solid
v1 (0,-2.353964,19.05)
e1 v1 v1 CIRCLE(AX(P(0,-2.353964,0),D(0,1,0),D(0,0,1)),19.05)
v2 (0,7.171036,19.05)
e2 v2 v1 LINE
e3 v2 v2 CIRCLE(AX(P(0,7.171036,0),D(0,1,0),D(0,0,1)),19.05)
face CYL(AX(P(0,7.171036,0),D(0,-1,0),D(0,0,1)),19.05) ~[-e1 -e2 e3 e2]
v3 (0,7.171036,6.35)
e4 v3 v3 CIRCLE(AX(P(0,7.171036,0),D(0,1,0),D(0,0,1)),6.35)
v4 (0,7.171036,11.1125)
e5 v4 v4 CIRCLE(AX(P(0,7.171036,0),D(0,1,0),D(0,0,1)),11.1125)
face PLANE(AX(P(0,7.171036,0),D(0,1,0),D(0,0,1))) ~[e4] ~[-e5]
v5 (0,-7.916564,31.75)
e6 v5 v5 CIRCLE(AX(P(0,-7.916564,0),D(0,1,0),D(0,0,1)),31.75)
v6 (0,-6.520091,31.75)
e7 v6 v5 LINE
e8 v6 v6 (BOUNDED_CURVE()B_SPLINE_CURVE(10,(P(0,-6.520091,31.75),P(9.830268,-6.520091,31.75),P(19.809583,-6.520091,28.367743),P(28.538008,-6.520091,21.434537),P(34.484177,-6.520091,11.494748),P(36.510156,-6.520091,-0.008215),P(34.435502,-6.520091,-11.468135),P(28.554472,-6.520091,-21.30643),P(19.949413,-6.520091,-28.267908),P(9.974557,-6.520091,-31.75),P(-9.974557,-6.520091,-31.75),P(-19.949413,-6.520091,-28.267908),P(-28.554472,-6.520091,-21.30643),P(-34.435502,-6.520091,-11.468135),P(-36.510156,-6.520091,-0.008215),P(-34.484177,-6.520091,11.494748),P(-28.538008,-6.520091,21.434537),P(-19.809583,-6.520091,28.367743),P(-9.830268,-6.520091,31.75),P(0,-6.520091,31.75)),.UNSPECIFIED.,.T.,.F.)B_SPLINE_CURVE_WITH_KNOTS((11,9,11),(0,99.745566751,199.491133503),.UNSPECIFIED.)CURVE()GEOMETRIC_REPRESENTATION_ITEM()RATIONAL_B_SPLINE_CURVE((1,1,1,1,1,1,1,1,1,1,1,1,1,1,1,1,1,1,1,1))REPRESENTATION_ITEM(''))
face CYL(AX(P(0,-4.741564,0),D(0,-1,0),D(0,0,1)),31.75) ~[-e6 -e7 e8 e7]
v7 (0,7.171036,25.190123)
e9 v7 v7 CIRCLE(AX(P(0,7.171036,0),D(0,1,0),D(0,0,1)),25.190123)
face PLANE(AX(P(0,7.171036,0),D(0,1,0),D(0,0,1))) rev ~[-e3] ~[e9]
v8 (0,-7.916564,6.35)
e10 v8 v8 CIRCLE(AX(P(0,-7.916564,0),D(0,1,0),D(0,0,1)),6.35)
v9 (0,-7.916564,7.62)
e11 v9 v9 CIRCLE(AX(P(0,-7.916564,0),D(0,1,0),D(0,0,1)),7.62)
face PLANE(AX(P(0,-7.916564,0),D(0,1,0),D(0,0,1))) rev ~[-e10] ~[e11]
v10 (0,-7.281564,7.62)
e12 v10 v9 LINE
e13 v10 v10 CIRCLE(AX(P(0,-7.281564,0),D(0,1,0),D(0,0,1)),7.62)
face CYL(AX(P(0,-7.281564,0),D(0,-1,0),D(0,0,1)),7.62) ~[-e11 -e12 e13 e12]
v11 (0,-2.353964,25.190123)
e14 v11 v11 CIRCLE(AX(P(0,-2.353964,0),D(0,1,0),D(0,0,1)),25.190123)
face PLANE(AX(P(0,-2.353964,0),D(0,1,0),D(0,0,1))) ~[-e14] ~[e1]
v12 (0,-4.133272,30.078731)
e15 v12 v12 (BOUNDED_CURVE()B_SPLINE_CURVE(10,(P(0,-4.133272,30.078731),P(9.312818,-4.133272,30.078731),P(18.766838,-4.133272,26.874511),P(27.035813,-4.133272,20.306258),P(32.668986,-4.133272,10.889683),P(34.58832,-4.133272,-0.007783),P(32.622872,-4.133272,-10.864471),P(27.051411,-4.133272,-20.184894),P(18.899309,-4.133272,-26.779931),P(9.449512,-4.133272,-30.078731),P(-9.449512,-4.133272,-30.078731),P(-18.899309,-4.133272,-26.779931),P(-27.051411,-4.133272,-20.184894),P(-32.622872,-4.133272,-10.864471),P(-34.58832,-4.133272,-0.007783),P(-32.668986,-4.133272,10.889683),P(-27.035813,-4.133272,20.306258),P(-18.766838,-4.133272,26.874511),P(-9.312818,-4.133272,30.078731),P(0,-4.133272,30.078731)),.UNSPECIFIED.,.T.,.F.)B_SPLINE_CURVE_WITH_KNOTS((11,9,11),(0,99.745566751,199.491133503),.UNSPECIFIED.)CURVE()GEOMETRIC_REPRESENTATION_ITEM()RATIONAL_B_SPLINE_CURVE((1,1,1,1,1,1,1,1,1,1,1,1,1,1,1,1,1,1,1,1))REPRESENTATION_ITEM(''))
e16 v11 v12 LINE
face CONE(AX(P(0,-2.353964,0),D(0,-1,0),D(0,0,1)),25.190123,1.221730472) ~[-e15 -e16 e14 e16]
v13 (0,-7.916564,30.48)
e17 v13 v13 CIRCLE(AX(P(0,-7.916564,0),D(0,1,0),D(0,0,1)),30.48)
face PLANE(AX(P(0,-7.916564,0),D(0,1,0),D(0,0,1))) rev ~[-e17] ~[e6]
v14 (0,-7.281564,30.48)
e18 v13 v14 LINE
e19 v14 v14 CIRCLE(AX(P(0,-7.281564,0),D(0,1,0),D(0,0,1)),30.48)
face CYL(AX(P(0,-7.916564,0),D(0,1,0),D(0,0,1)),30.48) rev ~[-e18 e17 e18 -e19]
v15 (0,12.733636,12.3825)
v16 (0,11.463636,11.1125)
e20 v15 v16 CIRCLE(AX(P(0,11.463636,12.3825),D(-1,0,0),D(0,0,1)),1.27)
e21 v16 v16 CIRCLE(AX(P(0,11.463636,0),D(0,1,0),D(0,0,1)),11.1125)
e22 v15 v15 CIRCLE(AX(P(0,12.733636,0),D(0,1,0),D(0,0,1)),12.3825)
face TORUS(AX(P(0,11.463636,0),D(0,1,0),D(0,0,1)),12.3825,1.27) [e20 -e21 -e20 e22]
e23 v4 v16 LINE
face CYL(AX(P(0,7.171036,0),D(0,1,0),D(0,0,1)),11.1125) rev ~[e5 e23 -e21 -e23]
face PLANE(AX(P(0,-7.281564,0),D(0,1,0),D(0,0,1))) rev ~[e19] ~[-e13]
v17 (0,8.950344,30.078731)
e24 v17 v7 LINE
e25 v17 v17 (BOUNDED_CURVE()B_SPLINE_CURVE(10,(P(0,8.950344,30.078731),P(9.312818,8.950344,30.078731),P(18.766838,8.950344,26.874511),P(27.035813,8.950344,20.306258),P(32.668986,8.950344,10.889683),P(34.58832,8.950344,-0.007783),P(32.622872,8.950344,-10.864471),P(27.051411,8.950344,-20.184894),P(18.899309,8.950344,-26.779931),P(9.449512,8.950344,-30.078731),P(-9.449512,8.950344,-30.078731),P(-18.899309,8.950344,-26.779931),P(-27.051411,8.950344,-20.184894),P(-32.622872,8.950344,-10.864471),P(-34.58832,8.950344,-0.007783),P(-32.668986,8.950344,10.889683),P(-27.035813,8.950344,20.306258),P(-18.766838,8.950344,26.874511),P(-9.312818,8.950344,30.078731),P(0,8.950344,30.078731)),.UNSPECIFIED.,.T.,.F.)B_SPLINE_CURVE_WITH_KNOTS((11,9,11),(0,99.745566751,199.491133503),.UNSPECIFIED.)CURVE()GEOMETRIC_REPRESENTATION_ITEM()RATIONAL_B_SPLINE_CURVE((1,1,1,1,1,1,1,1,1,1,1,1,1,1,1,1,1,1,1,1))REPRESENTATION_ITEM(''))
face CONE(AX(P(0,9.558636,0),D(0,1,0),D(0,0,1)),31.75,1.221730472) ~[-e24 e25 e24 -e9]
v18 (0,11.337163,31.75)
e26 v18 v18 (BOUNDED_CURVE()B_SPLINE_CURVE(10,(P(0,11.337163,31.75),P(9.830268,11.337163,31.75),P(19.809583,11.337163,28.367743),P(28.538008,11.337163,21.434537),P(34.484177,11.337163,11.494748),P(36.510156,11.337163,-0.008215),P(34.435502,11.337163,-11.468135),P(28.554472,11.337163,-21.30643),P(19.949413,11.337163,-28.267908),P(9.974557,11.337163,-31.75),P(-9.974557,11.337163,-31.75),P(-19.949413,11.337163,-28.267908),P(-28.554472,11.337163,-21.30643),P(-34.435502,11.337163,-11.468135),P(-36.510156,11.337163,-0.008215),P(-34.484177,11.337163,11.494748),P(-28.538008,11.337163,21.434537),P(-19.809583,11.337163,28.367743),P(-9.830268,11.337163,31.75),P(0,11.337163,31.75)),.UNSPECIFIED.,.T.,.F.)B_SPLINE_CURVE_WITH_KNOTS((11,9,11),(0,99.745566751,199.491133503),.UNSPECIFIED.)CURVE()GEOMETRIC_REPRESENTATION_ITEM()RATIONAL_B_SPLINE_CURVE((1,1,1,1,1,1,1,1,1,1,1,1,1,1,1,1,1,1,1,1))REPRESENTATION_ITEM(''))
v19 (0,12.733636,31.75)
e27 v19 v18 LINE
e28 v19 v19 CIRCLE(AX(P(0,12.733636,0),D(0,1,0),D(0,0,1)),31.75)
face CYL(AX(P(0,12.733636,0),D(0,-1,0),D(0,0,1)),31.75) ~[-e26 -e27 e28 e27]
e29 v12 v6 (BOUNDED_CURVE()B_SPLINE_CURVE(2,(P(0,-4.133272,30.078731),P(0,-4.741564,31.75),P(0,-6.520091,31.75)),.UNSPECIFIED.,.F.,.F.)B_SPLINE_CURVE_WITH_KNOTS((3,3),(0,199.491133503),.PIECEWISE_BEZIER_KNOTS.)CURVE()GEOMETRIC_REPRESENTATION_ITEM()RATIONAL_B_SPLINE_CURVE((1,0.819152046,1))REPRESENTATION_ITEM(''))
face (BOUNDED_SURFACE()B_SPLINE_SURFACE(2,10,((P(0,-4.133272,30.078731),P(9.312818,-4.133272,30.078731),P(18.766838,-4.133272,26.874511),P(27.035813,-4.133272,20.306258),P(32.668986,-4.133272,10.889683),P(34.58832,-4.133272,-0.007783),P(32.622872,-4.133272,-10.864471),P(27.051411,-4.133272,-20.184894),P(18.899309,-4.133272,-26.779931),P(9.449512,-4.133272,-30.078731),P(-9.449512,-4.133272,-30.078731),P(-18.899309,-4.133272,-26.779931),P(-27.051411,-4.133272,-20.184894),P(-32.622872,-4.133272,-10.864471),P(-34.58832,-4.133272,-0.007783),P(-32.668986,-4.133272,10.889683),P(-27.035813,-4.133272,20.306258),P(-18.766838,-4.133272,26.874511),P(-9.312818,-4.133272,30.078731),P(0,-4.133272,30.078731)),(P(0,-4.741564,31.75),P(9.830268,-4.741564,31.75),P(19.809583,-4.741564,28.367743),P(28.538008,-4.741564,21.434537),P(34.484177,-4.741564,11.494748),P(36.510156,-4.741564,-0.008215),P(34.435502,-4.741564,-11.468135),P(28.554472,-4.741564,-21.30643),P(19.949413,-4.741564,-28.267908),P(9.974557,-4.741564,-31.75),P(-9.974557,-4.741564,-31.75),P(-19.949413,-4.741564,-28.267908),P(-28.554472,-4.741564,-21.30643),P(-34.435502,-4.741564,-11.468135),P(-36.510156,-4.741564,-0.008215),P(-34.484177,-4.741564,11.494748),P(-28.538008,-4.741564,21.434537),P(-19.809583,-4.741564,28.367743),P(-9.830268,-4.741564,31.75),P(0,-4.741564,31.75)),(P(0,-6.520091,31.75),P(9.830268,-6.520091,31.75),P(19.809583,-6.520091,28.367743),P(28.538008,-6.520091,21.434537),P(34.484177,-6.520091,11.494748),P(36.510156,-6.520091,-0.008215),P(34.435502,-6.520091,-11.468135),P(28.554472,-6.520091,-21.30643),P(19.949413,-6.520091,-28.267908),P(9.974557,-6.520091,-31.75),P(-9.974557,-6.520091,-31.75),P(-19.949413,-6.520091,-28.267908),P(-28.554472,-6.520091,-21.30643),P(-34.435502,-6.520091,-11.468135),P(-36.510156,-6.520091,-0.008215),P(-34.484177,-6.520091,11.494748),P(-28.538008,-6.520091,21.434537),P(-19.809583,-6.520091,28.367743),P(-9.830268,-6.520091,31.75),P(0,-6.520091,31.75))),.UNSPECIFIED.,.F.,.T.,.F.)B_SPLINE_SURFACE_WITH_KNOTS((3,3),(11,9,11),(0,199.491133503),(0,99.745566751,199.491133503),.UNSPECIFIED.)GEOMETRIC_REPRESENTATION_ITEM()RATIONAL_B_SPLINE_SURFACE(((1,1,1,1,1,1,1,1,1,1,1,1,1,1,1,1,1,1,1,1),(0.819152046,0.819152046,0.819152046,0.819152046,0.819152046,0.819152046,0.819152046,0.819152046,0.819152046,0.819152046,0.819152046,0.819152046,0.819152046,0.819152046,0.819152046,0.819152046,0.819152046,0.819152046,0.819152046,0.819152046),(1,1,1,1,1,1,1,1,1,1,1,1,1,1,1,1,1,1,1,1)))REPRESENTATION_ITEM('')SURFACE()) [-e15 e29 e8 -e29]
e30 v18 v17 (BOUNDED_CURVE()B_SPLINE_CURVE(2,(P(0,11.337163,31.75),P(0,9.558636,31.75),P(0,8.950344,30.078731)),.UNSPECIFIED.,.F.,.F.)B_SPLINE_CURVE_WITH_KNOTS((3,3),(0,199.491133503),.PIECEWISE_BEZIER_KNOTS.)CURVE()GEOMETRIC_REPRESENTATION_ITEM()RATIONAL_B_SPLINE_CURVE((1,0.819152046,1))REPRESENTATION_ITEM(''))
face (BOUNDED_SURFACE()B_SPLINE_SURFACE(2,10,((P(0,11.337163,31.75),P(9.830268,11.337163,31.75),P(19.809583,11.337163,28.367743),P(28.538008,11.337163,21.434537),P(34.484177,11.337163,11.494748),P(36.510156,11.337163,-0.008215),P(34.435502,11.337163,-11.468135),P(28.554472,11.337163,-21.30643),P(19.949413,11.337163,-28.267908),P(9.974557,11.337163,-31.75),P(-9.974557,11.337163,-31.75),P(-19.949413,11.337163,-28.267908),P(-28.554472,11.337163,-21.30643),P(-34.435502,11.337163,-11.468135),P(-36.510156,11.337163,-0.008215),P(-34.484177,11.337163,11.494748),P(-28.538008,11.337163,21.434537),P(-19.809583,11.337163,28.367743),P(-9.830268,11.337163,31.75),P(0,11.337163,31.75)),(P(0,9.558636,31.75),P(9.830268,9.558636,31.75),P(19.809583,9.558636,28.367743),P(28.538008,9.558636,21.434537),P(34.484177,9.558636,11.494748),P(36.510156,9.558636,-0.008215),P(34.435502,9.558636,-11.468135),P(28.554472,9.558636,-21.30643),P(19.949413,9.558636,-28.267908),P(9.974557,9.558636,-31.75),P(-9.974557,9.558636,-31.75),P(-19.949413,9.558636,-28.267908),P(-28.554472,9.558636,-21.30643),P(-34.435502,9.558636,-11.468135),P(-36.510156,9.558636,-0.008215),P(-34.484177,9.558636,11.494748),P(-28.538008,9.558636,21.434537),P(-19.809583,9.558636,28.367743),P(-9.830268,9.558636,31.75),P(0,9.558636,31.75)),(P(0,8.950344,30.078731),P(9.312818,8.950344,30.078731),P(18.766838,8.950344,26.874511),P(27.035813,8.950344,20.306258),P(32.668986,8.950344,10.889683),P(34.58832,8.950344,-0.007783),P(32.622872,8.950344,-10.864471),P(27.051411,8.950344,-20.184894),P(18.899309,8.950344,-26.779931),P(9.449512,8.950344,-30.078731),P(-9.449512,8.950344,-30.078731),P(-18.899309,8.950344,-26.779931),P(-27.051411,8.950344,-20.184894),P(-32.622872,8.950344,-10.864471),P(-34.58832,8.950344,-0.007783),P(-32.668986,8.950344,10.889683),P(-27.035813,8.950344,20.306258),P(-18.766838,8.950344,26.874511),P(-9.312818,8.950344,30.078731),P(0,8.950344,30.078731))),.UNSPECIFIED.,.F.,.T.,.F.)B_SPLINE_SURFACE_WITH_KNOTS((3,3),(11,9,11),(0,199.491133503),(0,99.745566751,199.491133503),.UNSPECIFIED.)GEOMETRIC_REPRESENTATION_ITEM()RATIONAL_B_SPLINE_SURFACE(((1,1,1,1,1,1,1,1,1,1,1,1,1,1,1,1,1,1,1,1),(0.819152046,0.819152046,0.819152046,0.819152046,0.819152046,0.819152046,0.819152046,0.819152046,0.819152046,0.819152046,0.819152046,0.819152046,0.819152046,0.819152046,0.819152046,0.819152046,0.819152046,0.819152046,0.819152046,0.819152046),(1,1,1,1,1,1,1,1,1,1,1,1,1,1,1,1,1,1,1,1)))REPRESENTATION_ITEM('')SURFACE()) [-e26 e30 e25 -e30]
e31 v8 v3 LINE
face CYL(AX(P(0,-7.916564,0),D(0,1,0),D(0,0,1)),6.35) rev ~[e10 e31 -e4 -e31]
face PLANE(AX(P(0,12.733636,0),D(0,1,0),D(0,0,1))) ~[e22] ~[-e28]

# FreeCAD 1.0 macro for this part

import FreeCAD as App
import Part
import Sketcher
from FreeCAD import Vector
Q = App.Units.Quantity


def edges_at(feature, points):
    """Names of the edges that pass closest to the given points."""
    edges = feature.Shape.Edges
    near = lambda p: min(range(len(edges)), key=lambda i: edges[i].distToShape(Part.Vertex(*p))[0])
    return sorted({f"Edge{near(p) + 1}" for p in points})

doc = App.newDocument("Part")
params = doc.addObject("Spreadsheet::Sheet", "Params")
for row, (alias, value) in enumerate([
    ("sketch1_height", "0.9 in"),
    ("sketch1_width", "0.594 in"),
    ("sketch1_width2", "0.219 in"),
    ("sketch1_width3", "0.125 in"),
    ("sketch1_height2", "0.1875 in"),
    ("revolution_angle", "360 deg"),
    ("fillet_radius", "0.1 in"),
    ("fillet2_radius", "0.05 in"),
], start=1):
    params.set(f"A{row}", alias)
    params.set(f"B{row}", "=" + value)
    params.setAlias(f"B{row}", alias)

body = doc.addObject("PartDesign::Body", "Body")

sketch1 = body.newObject("Sketcher::SketchObject", "Sketch")
sketch1.AttachmentSupport = (doc.getObject("YZ_Plane"), [""])
sketch1.MapMode = "FlatFace"
sketch1.addGeometry(Part.LineSegment(Vector(-7.916564, 6.35, 0), Vector(7.171036, 6.35, 0)), False)
sketch1.addGeometry(Part.LineSegment(Vector(7.171036, 6.35, 0), Vector(7.171036, 11.1125, 0)), False)
sketch1.addGeometry(Part.LineSegment(Vector(7.171036, 11.1125, 0), Vector(12.733636, 11.1125, 0)), False)
sketch1.addGeometry(Part.LineSegment(Vector(12.733636, 11.1125, 0), Vector(12.733636, 31.75, 0)), False)
sketch1.addGeometry(Part.LineSegment(Vector(12.733636, 31.75, 0), Vector(9.558636, 31.75, 0)), False)
sketch1.addGeometry(Part.LineSegment(Vector(9.558636, 31.75, 0), Vector(7.171036, 25.190123, 0)), False)
sketch1.addGeometry(Part.LineSegment(Vector(7.171036, 25.190123, 0), Vector(7.171036, 19.05, 0)), False)
sketch1.addGeometry(Part.LineSegment(Vector(7.171036, 19.05, 0), Vector(-2.353964, 19.05, 0)), False)
sketch1.addGeometry(Part.LineSegment(Vector(-2.353964, 19.05, 0), Vector(-2.353964, 25.190123, 0)), False)
sketch1.addGeometry(Part.LineSegment(Vector(-2.353964, 25.190123, 0), Vector(-4.741564, 31.75, 0)), False)
sketch1.addGeometry(Part.LineSegment(Vector(-4.741564, 31.75, 0), Vector(-7.916564, 31.75, 0)), False)
sketch1.addGeometry(Part.LineSegment(Vector(-7.916564, 31.75, 0), Vector(-7.916564, 30.48, 0)), False)
sketch1.addGeometry(Part.LineSegment(Vector(-7.916564, 30.48, 0), Vector(-7.281564, 30.48, 0)), False)
sketch1.addGeometry(Part.LineSegment(Vector(-7.281564, 30.48, 0), Vector(-7.281564, 7.62, 0)), False)
sketch1.addGeometry(Part.LineSegment(Vector(-7.281564, 7.62, 0), Vector(-7.916564, 7.62, 0)), False)
sketch1.addGeometry(Part.LineSegment(Vector(-7.916564, 7.62, 0), Vector(-7.916564, 6.35, 0)), False)
sketch1.addConstraint(Sketcher.Constraint("Coincident", 0, 2, 1, 1))
sketch1.addConstraint(Sketcher.Constraint("Coincident", 1, 2, 2, 1))
sketch1.addConstraint(Sketcher.Constraint("Coincident", 2, 2, 3, 1))
sketch1.addConstraint(Sketcher.Constraint("Coincident", 3, 2, 4, 1))
sketch1.addConstraint(Sketcher.Constraint("Coincident", 4, 2, 5, 1))
sketch1.addConstraint(Sketcher.Constraint("Coincident", 5, 2, 6, 1))
sketch1.addConstraint(Sketcher.Constraint("Coincident", 6, 2, 7, 1))
sketch1.addConstraint(Sketcher.Constraint("Coincident", 7, 2, 8, 1))
sketch1.addConstraint(Sketcher.Constraint("Coincident", 8, 2, 9, 1))
sketch1.addConstraint(Sketcher.Constraint("Coincident", 9, 2, 10, 1))
sketch1.addConstraint(Sketcher.Constraint("Coincident", 10, 2, 11, 1))
sketch1.addConstraint(Sketcher.Constraint("Coincident", 11, 2, 12, 1))
sketch1.addConstraint(Sketcher.Constraint("Coincident", 12, 2, 13, 1))
sketch1.addConstraint(Sketcher.Constraint("Coincident", 13, 2, 14, 1))
sketch1.addConstraint(Sketcher.Constraint("Coincident", 14, 2, 15, 1))
sketch1.addConstraint(Sketcher.Constraint("Coincident", 15, 2, 0, 1))
sketch1.addConstraint(Sketcher.Constraint("Horizontal", 0))
sketch1.addConstraint(Sketcher.Constraint("Vertical", 1))
sketch1.addConstraint(Sketcher.Constraint("Horizontal", 2))
sketch1.addConstraint(Sketcher.Constraint("Vertical", 3))
sketch1.addConstraint(Sketcher.Constraint("Horizontal", 4))
sketch1.addConstraint(Sketcher.Constraint("Vertical", 6))
sketch1.addConstraint(Sketcher.Constraint("Horizontal", 7))
sketch1.addConstraint(Sketcher.Constraint("Vertical", 8))
sketch1.addConstraint(Sketcher.Constraint("Horizontal", 10))
sketch1.addConstraint(Sketcher.Constraint("Vertical", 11))
sketch1.addConstraint(Sketcher.Constraint("Horizontal", 12))
sketch1.addConstraint(Sketcher.Constraint("Vertical", 13))
sketch1.addConstraint(Sketcher.Constraint("Horizontal", 14))
sketch1.addConstraint(Sketcher.Constraint("Vertical", 15))
sketch1.addConstraint(Sketcher.Constraint("Horizontal", 5, 2, 8, 2))
sketch1.addConstraint(Sketcher.Constraint("Horizontal", 4, 2, 9, 2))
sketch1.addConstraint(Sketcher.Constraint("Vertical", 1, 2, 5, 2))
sketch1.addConstraint(Sketcher.Constraint("Vertical", 11, 2, 14, 2))
sketch1.addConstraint(Sketcher.Constraint("Equal", 4, 10))
sketch1.addConstraint(Sketcher.Constraint("Equal", 11, 15))
sketch1.addConstraint(Sketcher.Constraint("Equal", 5, 9))
sketch1.addConstraint(Sketcher.Constraint("DistanceY", 13, 2, 13, 1, Q("0.9 in")))
sketch1.addConstraint(Sketcher.Constraint("Angle", 5, Q("-110 deg")))
sketch1.addConstraint(Sketcher.Constraint("DistanceY", 0, 2, 3, 2, Q("1 in")))
sketch1.addConstraint(Sketcher.Constraint("DistanceY", -1, 1, 11, 2, Q("1.2 in")))
sketch1.addConstraint(Sketcher.Constraint("DistanceY", 0, 2, 6, 2, Q("0.5 in")))
sketch1.addConstraint(Sketcher.Constraint("DistanceX", 12, 2, 9, 2, Q("0.1 in")))
sketch1.addConstraint(Sketcher.Constraint("DistanceX", 0, 1, 0, 2, Q("0.594 in")))
sketch1.addConstraint(Sketcher.Constraint("DistanceX", 2, 1, 2, 2, Q("0.219 in")))
sketch1.addConstraint(Sketcher.Constraint("DistanceX", 4, 2, 4, 1, Q("0.125 in")))
sketch1.addConstraint(Sketcher.Constraint("DistanceY", 1, 1, 1, 2, Q("0.1875 in")))
sketch1.addConstraint(Sketcher.Constraint("DistanceX", -1, 1, 0, 2, 7.171036))
sketch1.setExpression("Constraints[37]", "Params.sketch1_height")
sketch1.setExpression("Constraints[43]", "Params.sketch1_width")
sketch1.setExpression("Constraints[44]", "Params.sketch1_width2")
sketch1.setExpression("Constraints[45]", "Params.sketch1_width3")
sketch1.setExpression("Constraints[46]", "Params.sketch1_height2")
revolution = body.newObject("PartDesign::Revolution", "Revolution")
revolution.Profile = sketch1
revolution.ReferenceAxis = (sketch1, ["H_Axis"])
revolution.setExpression("Angle", "Params.revolution_angle")
doc.recompute()

fillet = body.newObject("PartDesign::Fillet", "Fillet")
fillet.Base = (revolution, edges_at(revolution, [(0, 9.559, -31.75), (0, -4.742, -31.75)]))
fillet.setExpression("Radius", "Params.fillet_radius")
doc.recompute()

fillet2 = body.newObject("PartDesign::Fillet", "Fillet001")
fillet2.Base = (fillet, edges_at(fillet, [(0, 12.734, -11.113)]))
fillet2.setExpression("Radius", "Params.fillet2_radius")

doc.recompute()
